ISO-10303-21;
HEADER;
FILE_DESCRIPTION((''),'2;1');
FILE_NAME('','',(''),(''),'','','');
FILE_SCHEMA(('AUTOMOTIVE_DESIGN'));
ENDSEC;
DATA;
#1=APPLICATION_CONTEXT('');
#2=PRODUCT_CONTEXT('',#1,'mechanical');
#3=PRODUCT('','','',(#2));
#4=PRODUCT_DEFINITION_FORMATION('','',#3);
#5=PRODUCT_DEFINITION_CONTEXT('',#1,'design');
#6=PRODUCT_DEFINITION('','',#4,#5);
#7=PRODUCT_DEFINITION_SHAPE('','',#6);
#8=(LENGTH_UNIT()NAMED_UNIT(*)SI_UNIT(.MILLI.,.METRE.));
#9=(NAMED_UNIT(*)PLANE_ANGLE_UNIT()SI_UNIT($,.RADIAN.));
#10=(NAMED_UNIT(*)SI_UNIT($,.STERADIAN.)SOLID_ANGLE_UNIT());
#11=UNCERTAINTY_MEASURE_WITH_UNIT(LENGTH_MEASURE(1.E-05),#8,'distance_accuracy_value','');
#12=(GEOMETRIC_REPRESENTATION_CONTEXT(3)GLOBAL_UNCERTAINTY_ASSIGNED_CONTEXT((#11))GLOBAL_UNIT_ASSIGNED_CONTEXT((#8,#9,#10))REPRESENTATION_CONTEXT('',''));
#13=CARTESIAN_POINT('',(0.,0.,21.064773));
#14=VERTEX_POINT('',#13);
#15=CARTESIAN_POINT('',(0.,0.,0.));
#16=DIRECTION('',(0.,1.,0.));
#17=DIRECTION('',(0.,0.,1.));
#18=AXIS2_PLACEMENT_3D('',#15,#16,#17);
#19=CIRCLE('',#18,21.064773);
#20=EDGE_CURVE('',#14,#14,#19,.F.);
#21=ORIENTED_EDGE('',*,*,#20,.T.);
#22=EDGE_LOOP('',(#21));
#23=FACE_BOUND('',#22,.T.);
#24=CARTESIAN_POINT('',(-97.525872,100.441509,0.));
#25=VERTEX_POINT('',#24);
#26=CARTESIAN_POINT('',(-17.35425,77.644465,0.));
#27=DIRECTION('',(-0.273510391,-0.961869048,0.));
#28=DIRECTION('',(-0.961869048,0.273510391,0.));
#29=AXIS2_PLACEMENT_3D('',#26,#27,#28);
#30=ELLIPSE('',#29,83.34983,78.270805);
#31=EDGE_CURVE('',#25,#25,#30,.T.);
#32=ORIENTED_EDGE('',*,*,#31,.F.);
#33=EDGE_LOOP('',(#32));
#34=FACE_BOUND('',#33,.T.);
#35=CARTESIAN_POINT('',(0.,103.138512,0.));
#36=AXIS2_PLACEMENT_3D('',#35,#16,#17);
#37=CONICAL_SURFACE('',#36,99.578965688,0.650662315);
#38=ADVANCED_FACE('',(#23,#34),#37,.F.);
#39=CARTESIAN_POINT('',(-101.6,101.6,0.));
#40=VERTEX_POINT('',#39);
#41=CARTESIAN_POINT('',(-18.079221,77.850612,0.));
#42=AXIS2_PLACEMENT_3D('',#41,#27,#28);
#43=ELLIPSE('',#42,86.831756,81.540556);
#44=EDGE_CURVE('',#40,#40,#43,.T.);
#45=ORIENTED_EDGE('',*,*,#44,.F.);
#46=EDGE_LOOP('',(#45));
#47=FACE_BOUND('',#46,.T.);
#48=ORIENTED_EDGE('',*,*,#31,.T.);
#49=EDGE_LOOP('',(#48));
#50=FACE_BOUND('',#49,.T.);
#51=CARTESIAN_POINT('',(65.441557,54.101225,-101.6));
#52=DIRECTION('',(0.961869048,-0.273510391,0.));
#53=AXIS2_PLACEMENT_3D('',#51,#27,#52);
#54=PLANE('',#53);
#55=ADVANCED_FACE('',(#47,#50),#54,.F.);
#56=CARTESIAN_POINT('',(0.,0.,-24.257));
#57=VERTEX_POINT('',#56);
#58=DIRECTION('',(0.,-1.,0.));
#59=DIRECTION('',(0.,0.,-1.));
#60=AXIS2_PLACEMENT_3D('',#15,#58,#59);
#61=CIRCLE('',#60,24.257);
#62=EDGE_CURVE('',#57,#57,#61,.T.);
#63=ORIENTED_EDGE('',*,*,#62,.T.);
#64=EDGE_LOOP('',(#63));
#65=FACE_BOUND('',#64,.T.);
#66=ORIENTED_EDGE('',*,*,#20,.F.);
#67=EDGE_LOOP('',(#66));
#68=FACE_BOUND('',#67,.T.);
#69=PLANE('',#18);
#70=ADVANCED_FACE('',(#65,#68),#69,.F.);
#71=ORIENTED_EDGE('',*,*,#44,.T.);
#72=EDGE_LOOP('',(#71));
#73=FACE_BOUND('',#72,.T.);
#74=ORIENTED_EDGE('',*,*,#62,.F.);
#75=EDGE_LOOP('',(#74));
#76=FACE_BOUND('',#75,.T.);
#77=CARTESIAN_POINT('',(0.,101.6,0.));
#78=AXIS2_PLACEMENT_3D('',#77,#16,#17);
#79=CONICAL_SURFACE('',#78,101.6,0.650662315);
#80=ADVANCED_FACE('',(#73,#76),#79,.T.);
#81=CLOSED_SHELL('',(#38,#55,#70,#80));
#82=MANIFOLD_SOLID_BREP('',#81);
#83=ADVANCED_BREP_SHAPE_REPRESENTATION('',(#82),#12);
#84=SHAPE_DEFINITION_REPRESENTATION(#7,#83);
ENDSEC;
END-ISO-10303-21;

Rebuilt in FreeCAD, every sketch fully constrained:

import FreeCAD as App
import Part
import Sketcher
from FreeCAD import Vector
Q = App.Units.Quantity


def faces_at(feature, points):
    """Names of the faces that lie closest to the given points."""
    faces = feature.Shape.Faces
    near = lambda p: min(range(len(faces)), key=lambda i: faces[i].distToShape(Part.Vertex(*p))[0])
    return sorted({f"Face{near(p) + 1}" for p in points})

doc = App.newDocument("Part")
body = doc.addObject("PartDesign::Body", "Body")

# Sketch on XY plane
sketch1 = body.newObject("Sketcher::SketchObject", "Sketch")
sketch1.AttachmentSupport = (doc.getObject("XY_Plane"), [""])
sketch1.MapMode = "FlatFace"
sketch1.addGeometry([
    Part.LineSegment(Vector(-24, 0, 0), Vector(0, 0, 0)),
    Part.LineSegment(Vector(0, 0, 0), Vector(0, 102, 0)),
    Part.LineSegment(Vector(0, 102, 0), Vector(-102, 102, 0)),
    Part.LineSegment(Vector(-102, 102, 0), Vector(-24, 0, 0)),
], False)
sketch1.addConstraint([
    Sketcher.Constraint("Coincident", 0, 2, 1, 1),
    Sketcher.Constraint("Coincident", 1, 2, 2, 1),
    Sketcher.Constraint("Coincident", 2, 2, 3, 1),
    Sketcher.Constraint("Coincident", 3, 2, 0, 1),
    Sketcher.Constraint("Horizontal", 0),
    Sketcher.Constraint("Vertical", 1),
    Sketcher.Constraint("Horizontal", 2),
    Sketcher.Constraint("Coincident", 0, 2, -1, 1),
    Sketcher.Constraint("Equal", 2, 1),
    Sketcher.Constraint("DistanceX", 2, 2, 2, 1, Q("4 in")),
    Sketcher.Constraint("DistanceX", 0, 1, 0, 2, Q("0.955 in")),
])
revolution = body.newObject("PartDesign::Revolution", "Revolution")
revolution.Profile = sketch1
revolution.ReferenceAxis = (sketch1, ["V_Axis"])
revolution.Angle = 360
doc.recompute()

thickness = body.newObject("PartDesign::Thickness", "Thickness")
thickness.Base = (revolution, faces_at(revolution, [(0, 101.6, 0), (0, 0, 0)]))
thickness.Value = Q("0.1 in")
thickness.Reversed = True
thickness.Join = "Intersection"

# Sketch on XY plane
sketch2 = body.newObject("Sketcher::SketchObject", "Sketch001")
sketch2.AttachmentSupport = (doc.getObject("XY_Plane"), [""])
sketch2.MapMode = "FlatFace"
sketch2.addGeometry([
    Part.LineSegment(Vector(102, 102, 0), Vector(-102, 102, 0)),
    Part.LineSegment(Vector(-102, 102, 0), Vector(65, 54, 0)),
    Part.LineSegment(Vector(65, 54, 0), Vector(102, 102, 0)),
], False)
sketch2.addConstraint([
    Sketcher.Constraint("Coincident", 0, 2, 1, 1),
    Sketcher.Constraint("Coincident", 1, 2, 2, 1),
    Sketcher.Constraint("Coincident", 2, 2, 0, 1),
    Sketcher.Constraint("Horizontal", 0),
    Sketcher.Constraint("DistanceX", 0, 2, 0, 1, Q("8 in")),
    Sketcher.Constraint("DistanceX", 0, 2, -1, 1, Q("4 in")),
    Sketcher.Constraint("DistanceY", -1, 1, 0, 2, Q("4 in")),
    Sketcher.Constraint("Distance", 1, Q("173.663512 mm")),
    Sketcher.Constraint("Distance", 2, Q("59.695616 mm")),
])
pocket1 = body.newObject("PartDesign::Pocket", "Pocket")
pocket1.Profile = sketch2
pocket1.Type = "ThroughAll"
pocket1.Midplane = True

doc.recompute()
